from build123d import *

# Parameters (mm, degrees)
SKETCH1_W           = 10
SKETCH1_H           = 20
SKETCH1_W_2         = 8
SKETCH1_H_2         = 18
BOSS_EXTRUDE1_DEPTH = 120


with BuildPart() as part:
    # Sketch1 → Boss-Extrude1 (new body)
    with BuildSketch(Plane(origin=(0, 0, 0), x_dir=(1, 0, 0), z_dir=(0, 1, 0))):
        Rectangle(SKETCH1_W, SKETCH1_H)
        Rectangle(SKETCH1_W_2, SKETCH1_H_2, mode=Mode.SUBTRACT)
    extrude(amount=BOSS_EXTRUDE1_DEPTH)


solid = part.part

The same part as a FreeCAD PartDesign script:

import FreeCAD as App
import Part
import Sketcher
from FreeCAD import Vector


def add_polygon(sketch, points):
    """Adds a closed chain of lines whose ends are joined by coincident constraints."""
    first, n = sketch.GeometryCount, len(points)
    for a, b in zip(points, points[1:] + points[:1]):
        sketch.addGeometry(Part.LineSegment(App.Vector(*a, 0), App.Vector(*b, 0)), False)
    for i in range(n):
        sketch.addConstraint(Sketcher.Constraint("Coincident", first + i, 2, first + (i + 1) % n, 1))

doc = App.newDocument("Part")
body = doc.addObject("PartDesign::Body", "Body")

# Sketch on XZ plane
sketch1 = body.newObject("Sketcher::SketchObject", "Sketch")
sketch1.AttachmentSupport = (doc.getObject("XZ_Plane"), [""])
sketch1.MapMode = "FlatFace"
add_polygon(sketch1, [(-5, -10), (-5, 10), (5, 10), (5, -10)])  # lines 0-3
add_polygon(sketch1, [(4, 9), (-4, 9), (-4, -9), (4, -9)])  # lines 4-7
sketch1.addConstraint([
    Sketcher.Constraint("Vertical", 0),
    Sketcher.Constraint("Horizontal", 1),
    Sketcher.Constraint("Vertical", 2),
    Sketcher.Constraint("Horizontal", 3),
    Sketcher.Constraint("Horizontal", 4),
    Sketcher.Constraint("Vertical", 5),
    Sketcher.Constraint("Horizontal", 6),
    Sketcher.Constraint("Vertical", 7),
    Sketcher.Constraint("Symmetric", 0, 2, 2, 2, -1, 1),
    Sketcher.Constraint("Symmetric", 4, 2, 6, 2, -1, 1),
    Sketcher.Constraint("DistanceX", 1, 1, 1, 2, 10.0),
    Sketcher.Constraint("DistanceX", 4, 2, 4, 1, 8.0),
    Sketcher.Constraint("DistanceY", 0, 1, 0, 2, 20.0),
    Sketcher.Constraint("DistanceY", 5, 2, 5, 1, 18.0),
])
pad1 = body.newObject("PartDesign::Pad", "Pad")
pad1.Profile = sketch1
pad1.Length = 120
pad1.Reversed = True

doc.recompute()
